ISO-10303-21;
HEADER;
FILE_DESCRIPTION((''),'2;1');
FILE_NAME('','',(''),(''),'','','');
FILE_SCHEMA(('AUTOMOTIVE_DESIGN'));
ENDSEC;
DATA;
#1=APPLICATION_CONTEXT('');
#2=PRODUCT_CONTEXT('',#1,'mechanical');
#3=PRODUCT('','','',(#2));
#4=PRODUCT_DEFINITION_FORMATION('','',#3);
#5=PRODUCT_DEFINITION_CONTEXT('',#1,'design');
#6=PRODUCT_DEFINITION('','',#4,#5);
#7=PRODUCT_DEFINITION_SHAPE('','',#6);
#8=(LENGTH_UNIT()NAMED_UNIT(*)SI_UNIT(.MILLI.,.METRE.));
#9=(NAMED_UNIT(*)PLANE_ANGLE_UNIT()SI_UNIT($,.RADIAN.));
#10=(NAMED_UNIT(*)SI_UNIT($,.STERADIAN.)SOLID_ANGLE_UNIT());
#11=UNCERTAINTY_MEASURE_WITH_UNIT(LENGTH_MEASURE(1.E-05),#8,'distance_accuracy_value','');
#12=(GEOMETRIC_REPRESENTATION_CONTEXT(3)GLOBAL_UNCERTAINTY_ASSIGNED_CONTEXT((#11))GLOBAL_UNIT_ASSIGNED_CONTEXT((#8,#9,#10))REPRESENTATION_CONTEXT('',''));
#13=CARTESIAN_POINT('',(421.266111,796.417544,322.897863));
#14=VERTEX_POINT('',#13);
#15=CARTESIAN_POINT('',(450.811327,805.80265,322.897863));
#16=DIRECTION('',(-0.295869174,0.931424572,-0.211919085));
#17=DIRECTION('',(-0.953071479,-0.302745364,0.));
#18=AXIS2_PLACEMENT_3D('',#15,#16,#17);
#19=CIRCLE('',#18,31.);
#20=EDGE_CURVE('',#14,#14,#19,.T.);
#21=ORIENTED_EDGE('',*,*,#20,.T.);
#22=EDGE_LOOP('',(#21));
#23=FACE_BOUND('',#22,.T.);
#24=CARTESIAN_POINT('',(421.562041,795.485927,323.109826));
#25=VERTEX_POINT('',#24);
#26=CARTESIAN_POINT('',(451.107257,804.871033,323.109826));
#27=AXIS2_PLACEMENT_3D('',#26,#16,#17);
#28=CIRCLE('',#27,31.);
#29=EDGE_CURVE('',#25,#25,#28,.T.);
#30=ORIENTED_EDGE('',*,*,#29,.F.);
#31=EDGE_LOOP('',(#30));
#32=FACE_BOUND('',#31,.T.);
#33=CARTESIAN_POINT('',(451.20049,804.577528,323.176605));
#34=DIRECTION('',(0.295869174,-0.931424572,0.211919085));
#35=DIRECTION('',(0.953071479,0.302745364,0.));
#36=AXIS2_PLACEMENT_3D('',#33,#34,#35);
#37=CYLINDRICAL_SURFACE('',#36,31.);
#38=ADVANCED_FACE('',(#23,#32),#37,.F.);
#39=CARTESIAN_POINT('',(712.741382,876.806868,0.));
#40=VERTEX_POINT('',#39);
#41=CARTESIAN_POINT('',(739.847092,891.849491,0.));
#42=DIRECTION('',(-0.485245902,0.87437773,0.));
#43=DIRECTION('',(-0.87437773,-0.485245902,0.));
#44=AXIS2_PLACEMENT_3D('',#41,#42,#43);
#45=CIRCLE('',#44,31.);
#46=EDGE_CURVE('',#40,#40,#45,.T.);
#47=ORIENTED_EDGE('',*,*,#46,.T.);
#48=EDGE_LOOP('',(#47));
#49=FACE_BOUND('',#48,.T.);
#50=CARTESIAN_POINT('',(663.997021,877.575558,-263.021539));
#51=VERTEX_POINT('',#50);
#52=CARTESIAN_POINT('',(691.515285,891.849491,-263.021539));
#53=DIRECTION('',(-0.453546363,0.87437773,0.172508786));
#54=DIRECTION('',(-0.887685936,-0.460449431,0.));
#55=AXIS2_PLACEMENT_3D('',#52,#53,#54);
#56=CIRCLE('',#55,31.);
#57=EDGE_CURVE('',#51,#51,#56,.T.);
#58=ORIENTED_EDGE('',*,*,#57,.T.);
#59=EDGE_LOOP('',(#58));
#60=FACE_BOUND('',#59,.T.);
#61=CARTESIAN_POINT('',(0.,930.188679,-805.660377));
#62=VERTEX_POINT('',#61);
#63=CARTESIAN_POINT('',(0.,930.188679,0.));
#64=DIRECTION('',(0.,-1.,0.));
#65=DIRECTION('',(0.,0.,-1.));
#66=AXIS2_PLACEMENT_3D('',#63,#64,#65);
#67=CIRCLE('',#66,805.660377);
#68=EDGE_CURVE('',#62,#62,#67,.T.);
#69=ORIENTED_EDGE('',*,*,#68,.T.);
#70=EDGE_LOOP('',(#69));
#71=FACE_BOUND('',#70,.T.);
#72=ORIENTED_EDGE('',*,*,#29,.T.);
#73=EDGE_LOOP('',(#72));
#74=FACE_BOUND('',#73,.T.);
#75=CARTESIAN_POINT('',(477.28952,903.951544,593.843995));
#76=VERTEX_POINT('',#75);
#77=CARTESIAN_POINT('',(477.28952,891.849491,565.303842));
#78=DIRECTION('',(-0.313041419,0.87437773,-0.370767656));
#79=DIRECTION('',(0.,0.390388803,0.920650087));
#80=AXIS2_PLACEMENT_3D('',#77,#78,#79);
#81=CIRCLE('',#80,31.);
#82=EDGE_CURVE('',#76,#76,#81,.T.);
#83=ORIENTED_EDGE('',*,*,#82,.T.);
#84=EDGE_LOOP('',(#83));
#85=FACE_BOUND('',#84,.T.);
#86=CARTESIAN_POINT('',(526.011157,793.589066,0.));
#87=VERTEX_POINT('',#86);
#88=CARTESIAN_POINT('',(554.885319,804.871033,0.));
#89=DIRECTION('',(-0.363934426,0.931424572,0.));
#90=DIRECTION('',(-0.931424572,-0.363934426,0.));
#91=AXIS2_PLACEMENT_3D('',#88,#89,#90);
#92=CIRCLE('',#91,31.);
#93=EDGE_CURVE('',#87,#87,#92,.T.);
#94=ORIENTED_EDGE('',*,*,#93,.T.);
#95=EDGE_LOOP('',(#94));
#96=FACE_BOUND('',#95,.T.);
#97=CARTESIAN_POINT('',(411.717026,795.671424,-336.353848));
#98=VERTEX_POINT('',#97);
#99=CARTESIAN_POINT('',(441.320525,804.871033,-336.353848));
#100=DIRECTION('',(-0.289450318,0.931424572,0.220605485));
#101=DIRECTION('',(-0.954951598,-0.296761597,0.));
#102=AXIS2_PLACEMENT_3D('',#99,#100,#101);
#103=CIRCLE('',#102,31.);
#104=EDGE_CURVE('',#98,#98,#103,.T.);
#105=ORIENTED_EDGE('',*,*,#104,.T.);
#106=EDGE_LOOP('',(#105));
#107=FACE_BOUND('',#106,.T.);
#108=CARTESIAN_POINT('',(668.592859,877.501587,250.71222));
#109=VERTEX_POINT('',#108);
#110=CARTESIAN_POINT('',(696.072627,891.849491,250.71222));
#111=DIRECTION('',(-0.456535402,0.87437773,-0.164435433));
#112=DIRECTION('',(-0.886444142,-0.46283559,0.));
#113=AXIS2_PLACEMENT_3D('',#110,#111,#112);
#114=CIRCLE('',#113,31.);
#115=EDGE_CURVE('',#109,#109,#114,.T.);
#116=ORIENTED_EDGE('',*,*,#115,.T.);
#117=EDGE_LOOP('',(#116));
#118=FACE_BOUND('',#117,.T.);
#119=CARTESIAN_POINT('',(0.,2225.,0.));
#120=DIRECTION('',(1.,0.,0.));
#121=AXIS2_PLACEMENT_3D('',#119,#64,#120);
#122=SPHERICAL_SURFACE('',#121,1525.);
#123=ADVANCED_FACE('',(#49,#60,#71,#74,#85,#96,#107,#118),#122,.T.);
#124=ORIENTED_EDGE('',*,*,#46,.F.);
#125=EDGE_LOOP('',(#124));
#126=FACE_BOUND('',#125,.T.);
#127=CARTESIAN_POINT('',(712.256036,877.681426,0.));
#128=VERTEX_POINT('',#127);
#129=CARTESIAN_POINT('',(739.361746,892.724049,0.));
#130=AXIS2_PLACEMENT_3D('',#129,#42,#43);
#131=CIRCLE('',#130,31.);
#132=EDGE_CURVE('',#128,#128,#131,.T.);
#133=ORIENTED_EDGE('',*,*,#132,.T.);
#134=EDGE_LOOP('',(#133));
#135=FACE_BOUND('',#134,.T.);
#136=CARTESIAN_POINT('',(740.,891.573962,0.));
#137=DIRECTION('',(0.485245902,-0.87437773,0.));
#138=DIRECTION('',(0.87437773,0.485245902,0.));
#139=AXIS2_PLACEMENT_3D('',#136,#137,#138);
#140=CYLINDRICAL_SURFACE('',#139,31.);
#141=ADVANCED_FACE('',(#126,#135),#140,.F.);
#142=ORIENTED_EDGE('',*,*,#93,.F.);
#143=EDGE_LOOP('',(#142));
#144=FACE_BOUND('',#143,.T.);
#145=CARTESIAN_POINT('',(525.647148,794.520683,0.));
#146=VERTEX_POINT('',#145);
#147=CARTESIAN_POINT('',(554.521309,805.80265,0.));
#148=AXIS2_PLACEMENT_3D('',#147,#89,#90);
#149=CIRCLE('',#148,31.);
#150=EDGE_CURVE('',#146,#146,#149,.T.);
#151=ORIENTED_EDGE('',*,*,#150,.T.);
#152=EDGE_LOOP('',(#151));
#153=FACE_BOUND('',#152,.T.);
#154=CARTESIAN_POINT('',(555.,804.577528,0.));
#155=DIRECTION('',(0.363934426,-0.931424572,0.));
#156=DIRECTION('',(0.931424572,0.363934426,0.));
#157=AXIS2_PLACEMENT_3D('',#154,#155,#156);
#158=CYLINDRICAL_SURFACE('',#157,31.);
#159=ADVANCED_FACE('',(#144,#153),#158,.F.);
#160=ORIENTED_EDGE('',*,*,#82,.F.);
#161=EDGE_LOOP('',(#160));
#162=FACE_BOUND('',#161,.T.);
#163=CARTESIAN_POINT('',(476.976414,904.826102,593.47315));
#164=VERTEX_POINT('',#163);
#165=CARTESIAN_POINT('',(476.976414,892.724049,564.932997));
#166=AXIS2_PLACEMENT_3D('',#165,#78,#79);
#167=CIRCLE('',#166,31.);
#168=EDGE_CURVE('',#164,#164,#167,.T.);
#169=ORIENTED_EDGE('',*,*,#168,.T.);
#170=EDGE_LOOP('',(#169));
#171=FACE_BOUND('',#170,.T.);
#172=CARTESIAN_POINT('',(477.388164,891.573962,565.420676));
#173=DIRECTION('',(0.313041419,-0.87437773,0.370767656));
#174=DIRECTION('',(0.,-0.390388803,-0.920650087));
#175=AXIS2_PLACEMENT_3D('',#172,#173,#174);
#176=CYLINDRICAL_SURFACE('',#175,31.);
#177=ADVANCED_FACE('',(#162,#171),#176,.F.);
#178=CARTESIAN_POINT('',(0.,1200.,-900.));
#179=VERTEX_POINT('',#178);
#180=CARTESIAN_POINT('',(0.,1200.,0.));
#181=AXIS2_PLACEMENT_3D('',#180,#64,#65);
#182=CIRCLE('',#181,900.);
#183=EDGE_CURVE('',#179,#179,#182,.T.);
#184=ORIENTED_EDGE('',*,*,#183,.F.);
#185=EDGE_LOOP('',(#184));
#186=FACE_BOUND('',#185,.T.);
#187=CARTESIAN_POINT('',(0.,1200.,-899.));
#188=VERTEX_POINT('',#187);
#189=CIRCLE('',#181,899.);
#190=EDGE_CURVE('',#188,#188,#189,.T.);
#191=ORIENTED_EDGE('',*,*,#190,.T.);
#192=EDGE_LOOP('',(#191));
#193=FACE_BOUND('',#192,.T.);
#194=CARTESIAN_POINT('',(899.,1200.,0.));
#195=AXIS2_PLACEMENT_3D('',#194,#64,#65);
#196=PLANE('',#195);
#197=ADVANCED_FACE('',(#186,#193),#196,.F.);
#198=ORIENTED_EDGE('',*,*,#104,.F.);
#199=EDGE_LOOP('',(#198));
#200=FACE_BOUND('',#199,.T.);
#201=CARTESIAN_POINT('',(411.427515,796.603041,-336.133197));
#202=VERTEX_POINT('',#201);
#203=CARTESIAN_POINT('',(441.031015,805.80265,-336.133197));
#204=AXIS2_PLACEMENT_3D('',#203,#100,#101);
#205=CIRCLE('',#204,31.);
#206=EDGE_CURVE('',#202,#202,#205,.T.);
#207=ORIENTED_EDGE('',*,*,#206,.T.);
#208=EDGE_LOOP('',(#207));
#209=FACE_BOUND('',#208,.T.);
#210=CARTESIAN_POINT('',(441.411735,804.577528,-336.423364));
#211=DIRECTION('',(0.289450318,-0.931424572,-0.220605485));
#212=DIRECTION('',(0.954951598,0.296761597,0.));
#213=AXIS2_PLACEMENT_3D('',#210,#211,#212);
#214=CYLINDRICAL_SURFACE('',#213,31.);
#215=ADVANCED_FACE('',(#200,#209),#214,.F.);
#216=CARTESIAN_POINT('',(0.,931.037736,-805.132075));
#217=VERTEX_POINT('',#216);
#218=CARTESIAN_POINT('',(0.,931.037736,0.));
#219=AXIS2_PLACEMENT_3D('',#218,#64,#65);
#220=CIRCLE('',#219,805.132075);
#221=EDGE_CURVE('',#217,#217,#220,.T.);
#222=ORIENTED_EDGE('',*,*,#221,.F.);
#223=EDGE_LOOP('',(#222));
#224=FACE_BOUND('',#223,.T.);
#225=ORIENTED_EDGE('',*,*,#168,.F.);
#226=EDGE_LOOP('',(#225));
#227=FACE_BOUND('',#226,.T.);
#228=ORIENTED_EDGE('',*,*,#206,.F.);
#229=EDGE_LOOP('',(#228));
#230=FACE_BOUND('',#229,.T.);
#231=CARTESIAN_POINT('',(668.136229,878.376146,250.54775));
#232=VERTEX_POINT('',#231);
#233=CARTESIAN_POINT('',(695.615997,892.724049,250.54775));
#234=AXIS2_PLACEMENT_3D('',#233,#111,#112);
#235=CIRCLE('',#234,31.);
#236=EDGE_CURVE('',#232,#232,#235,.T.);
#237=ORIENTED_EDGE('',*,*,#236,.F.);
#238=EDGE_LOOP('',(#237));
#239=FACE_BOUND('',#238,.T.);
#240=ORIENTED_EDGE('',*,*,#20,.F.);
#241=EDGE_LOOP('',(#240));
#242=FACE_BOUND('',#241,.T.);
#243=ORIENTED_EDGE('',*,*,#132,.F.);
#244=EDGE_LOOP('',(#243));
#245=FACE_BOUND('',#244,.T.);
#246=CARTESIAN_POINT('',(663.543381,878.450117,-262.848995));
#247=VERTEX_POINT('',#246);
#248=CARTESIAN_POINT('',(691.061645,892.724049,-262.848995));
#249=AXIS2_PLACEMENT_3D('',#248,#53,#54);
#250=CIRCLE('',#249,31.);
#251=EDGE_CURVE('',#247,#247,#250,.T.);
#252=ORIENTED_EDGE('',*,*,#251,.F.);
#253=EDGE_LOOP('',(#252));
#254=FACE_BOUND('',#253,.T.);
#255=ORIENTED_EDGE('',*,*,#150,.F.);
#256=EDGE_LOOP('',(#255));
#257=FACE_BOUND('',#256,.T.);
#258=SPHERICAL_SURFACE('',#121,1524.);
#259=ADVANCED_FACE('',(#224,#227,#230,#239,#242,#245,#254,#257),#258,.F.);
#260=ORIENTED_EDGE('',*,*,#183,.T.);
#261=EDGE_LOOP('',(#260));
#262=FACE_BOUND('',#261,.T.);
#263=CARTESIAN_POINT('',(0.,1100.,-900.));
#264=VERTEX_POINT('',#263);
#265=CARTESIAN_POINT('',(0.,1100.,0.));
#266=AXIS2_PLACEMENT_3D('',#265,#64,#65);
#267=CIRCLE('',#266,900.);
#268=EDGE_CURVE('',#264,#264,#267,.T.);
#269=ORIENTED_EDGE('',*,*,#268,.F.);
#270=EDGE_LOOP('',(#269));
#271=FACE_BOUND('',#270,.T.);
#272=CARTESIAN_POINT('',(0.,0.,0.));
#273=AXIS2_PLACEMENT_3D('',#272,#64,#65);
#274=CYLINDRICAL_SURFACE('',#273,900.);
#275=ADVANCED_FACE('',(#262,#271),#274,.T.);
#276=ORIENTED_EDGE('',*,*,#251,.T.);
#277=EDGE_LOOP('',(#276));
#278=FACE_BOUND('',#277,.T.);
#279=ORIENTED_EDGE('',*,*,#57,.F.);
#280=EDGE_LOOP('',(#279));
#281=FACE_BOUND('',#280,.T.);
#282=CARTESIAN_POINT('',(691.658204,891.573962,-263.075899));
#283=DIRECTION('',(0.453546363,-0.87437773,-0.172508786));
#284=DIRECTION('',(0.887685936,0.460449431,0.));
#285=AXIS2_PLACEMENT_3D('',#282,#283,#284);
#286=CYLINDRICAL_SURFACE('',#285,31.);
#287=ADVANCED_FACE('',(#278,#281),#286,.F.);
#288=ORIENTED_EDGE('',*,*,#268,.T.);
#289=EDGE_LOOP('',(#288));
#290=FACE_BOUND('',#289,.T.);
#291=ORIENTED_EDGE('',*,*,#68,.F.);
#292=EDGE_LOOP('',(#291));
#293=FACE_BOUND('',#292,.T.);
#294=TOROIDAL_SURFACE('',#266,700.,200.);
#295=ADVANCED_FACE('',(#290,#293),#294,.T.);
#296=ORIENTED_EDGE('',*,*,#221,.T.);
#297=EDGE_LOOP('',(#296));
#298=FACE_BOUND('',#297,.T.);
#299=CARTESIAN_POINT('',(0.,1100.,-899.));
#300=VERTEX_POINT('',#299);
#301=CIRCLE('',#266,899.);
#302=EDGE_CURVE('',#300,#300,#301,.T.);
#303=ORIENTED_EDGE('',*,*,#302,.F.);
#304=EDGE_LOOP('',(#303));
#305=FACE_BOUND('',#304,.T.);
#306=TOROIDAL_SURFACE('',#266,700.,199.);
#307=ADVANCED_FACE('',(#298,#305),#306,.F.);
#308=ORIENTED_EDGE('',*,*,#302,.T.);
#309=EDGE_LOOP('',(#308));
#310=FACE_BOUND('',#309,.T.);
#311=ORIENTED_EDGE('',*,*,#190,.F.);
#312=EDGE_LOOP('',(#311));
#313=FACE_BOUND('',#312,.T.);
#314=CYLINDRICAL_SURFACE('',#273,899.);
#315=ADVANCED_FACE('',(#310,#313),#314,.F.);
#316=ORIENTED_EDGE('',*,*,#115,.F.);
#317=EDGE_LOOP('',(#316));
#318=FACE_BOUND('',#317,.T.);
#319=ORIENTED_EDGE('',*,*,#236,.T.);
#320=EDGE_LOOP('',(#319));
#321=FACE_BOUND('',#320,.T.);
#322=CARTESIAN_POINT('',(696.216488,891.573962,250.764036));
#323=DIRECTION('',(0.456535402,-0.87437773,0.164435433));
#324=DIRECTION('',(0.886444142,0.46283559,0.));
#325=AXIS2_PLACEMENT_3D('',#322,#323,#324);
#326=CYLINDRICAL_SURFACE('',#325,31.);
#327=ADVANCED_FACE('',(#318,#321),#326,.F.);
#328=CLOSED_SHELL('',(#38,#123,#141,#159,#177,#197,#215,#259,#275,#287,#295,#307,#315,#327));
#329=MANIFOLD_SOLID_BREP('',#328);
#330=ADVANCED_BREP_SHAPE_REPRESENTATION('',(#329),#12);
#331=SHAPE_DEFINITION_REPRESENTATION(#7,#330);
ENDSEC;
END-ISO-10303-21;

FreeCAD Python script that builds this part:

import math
import FreeCAD as App
import Part
import Sketcher

V = App.Vector

doc = App.newDocument("Part")
body = doc.addObject("PartDesign::Body", "Body")

# Sketch on XY plane
sketch1 = doc.addObject("Sketcher::SketchObject", "Sketch")
body.addObject(sketch1)
sketch1.AttachmentSupport = (doc.XY_Plane, [""])
sketch1.MapMode = "FlatFace"
sketch1.addGeometry([
    Part.LineSegment(V(900, 1100, 0), V(900, 1200, 0)),  # 0
    Part.LineSegment(V(900, 1200, 0), V(899, 1200, 0)),  # 1
    Part.LineSegment(V(899, 1200, 0), V(899, 1100, 0)),  # 2
    Part.ArcOfCircle(Part.Circle(V(700, 1100, 0), V(0, 0, 1), 199), math.radians(-58.109208), math.radians(0)),  # 3
    Part.ArcOfCircle(Part.Circle(V(0, 2225, 0), V(0, 0, 1), 1524), math.radians(-90), math.radians(-58.109208)),  # 4
    Part.LineSegment(V(0, 701, 0), V(0, 700, 0)),  # 5
    Part.ArcOfCircle(Part.Circle(V(0, 2225, 0), V(0, 0, 1), 1525), math.radians(-90), math.radians(-58.109208)),  # 6
    Part.ArcOfCircle(Part.Circle(V(700, 1100, 0), V(0, 0, 1), 200), math.radians(-58.109208), math.radians(0)),  # 7
], False)
sketch1.addConstraint([
    Sketcher.Constraint("Coincident", 0, 2, 1, 1),
    Sketcher.Constraint("Coincident", 1, 2, 2, 1),
    Sketcher.Constraint("Tangent", 2, 2, 3, 2),
    Sketcher.Constraint("Tangent", 3, 1, 4, 2),
    Sketcher.Constraint("Coincident", 4, 1, 5, 1),
    Sketcher.Constraint("Coincident", 5, 2, 6, 1),
    Sketcher.Constraint("Tangent", 6, 2, 7, 1),
    Sketcher.Constraint("Tangent", 7, 2, 0, 1),
    Sketcher.Constraint("Vertical", 0),
    Sketcher.Constraint("Horizontal", 1),
    Sketcher.Constraint("Vertical", 2),
    Sketcher.Constraint("Vertical", 5),
    Sketcher.Constraint("Coincident", 6, 3, 4, 3),
    Sketcher.Constraint("Coincident", 7, 3, 3, 3),
    Sketcher.Constraint("PointOnObject", 4, 3, -2),
    Sketcher.Constraint("PointOnObject", 5, 2, -2),
    Sketcher.Constraint("Radius", 3, 199.0),
    Sketcher.Constraint("Radius", 4, 1524.0),
    Sketcher.Constraint("Radius", 6, 1525.0),
    Sketcher.Constraint("DistanceY", 0, 1, 0, 2, 100.0),
    Sketcher.Constraint("DistanceX", -1, 1, 3, 3, 700.0),
    Sketcher.Constraint("DistanceY", -1, 1, 3, 3, 1100.0),
])
revolution = doc.addObject("PartDesign::Revolution", "Revolution")
body.addObject(revolution)
revolution.Profile = sketch1
revolution.ReferenceAxis = (sketch1, ["V_Axis"])
revolution.Angle = 360

# Sketch on an angled plane
sketch2 = doc.addObject("Sketcher::SketchObject", "Sketch001")
body.addObject(sketch2)
sketch2.Placement = App.Placement(V(-190.711914, 367.667485, 72.538297), App.Rotation(V(-0.887685936, -0.460449431, 0), V(-0.079431572, 0.153133623, -0.985007978), V(0.453546363, -0.87437773, -0.172508786), "ZXY"))
sketch2.addGeometry(Part.Circle(V(-1024.499983, 340.722312, 0), V(0, 0, 1), 31), False)
sketch2.addConstraint([
    Sketcher.Constraint("Diameter", 0, 62.0),
    Sketcher.Constraint("DistanceY", -1, 1, 0, 3, 340.722312),
    Sketcher.Constraint("DistanceX", 0, 3, -1, 1, 1024.499983),
])
doc.recompute()
hole = doc.addObject("PartDesign::Hole", "Hole")
body.addObject(hole)
hole.Profile = sketch2
hole.ThreadType = "None"
hole.Diameter = 62
hole.DepthType = "ThroughAll"

# Sketch on an angled plane
sketch3 = doc.addObject("Sketcher::SketchObject", "Sketch002")
body.addObject(sketch3)
sketch3.Placement = App.Placement(V(-131.630767, 367.667643, -155.904422), App.Rotation(V(0, -0.390389007, -0.92065), V(0.949739637, 0.288201129, -0.122207737), V(0.313040927, -0.874377797, 0.370767914), "ZXY"))
sketch3.addGeometry(Part.Circle(V(-868.615219, 641.248303, 0), V(0, 0, 1), 31), False)
sketch3.addConstraint([
    Sketcher.Constraint("Diameter", 0, 62.0),
    Sketcher.Constraint("DistanceX", 0, 3, -1, 1, 868.615219),
    Sketcher.Constraint("DistanceY", -1, 1, 0, 3, 641.248303),
])
doc.recompute()
hole2 = doc.addObject("PartDesign::Hole", "Hole001")
body.addObject(hole2)
hole2.Profile = sketch3
hole2.ThreadType = "None"
hole2.Diameter = 62
hole2.DepthType = "ThroughAll"

# Sketch on an angled plane
sketch4 = doc.addObject("Sketcher::SketchObject", "Sketch003")
body.addObject(sketch4)
sketch4.Placement = App.Placement(V(-204.041274, 367.667537, 0), App.Rotation(V(-0.874377752, -0.485245862, 0), V(0, 0, -1), V(0.485245862, -0.874377752, 0), "ZXY"))
sketch4.addGeometry(Part.Circle(V(-1079.672112, 0, 0), V(0, 0, 1), 31), False)
sketch4.addConstraint([
    Sketcher.Constraint("PointOnObject", 0, 3, -1),
    Sketcher.Constraint("Diameter", 0, 62.0),
    Sketcher.Constraint("DistanceX", 0, 3, -1, 1, 1079.672112),
])
doc.recompute()
hole3 = doc.addObject("PartDesign::Hole", "Hole002")
body.addObject(hole3)
hole3.Profile = sketch4
hole3.ThreadType = "None"
hole3.Diameter = 62
hole3.DepthType = "ThroughAll"

# Sketch on an angled plane
sketch5 = doc.addObject("Sketcher::SketchObject", "Sketch004")
body.addObject(sketch5)
sketch5.Placement = App.Placement(V(-158.450748, 509.880769, 120.763612), App.Rotation(V(-0.954951729, -0.296761175, 0), V(-0.065466986, 0.210667084, -0.975363241), V(0.289449942, -0.931424814, -0.220604956), "ZXY"))
sketch5.addGeometry(Part.Circle(V(-660.294272, 468.735089, 0), V(0, 0, 1), 31), False)
sketch5.addConstraint([
    Sketcher.Constraint("Diameter", 0, 62.0),
    Sketcher.Constraint("DistanceY", -1, 1, 0, 3, 468.735089),
    Sketcher.Constraint("DistanceX", 0, 3, -1, 1, 660.294272),
])
doc.recompute()
hole4 = doc.addObject("PartDesign::Hole", "Hole003")
body.addObject(hole4)
hole4.Profile = sketch5
hole4.ThreadType = "None"
hole4.Diameter = 62
hole4.DepthType = "ThroughAll"

# Sketch on an angled plane
sketch6 = doc.addObject("Sketcher::SketchObject", "Sketch005")
body.addObject(sketch6)
sketch6.Placement = App.Placement(V(-199.224746, 509.880662, 0), App.Rotation(V(-0.931424773, -0.363933911, 0), V(0, 0, -0.999999999), V(0.363933911, -0.931424773, 0), "ZXY"))
sketch6.addGeometry(Part.Circle(V(-809.753795, 0, 0), V(0, 0, 1), 31), False)
sketch6.addConstraint([
    Sketcher.Constraint("PointOnObject", 0, 3, -1),
    Sketcher.Constraint("Diameter", 0, 62.0),
    Sketcher.Constraint("DistanceX", 0, 3, -1, 1, 809.753795),
])
doc.recompute()
hole5 = doc.addObject("PartDesign::Hole", "Hole004")
body.addObject(hole5)
hole5.Profile = sketch6
hole5.ThreadType = "None"
hole5.Diameter = 62
hole5.DepthType = "ThroughAll"

# Sketch on an angled plane
sketch7 = doc.addObject("Sketcher::SketchObject", "Sketch006")
body.addObject(sketch7)
sketch7.Placement = App.Placement(V(-191.968902, 367.668162, -69.143453), App.Rotation(V(-0.886444367, -0.462835158, 0), V(0.076106301, -0.145762482, -0.98638792), V(0.456535009, -0.874378016, 0.164435003), "ZXY"))
sketch7.addGeometry(Part.Circle(V(-1029.808959, -324.322188, 0), V(0, 0, 1), 31), False)
sketch7.addConstraint([
    Sketcher.Constraint("Diameter", 0, 62.0),
    Sketcher.Constraint("DistanceX", 0, 3, -1, 1, 1029.808959),
    Sketcher.Constraint("DistanceY", 0, 3, -1, 1, 324.322188),
])
doc.recompute()
hole6 = doc.addObject("PartDesign::Hole", "Hole005")
body.addObject(hole6)
hole6.Profile = sketch7
hole6.ThreadType = "None"
hole6.Diameter = 62
hole6.DepthType = "ThroughAll"

# Sketch on an angled plane
sketch8 = doc.addObject("Sketcher::SketchObject", "Sketch007")
body.addObject(sketch8)
sketch8.Placement = App.Placement(V(-161.964538, 509.880452, -116.008649), App.Rotation(V(-0.953071571, -0.302745077, 0), V(0.064157413, -0.201973908, -0.977287249), V(0.295868903, -0.931424693, 0.21191893), "ZXY"))
sketch8.addGeometry(Part.Circle(V(-673.608245, -449.392187, 0), V(0, 0, 1), 31), False)
sketch8.addConstraint([
    Sketcher.Constraint("Diameter", 0, 62.0),
    Sketcher.Constraint("DistanceX", 0, 3, -1, 1, 673.608245),
    Sketcher.Constraint("DistanceY", 0, 3, -1, 1, 449.392187),
])
doc.recompute()
hole7 = doc.addObject("PartDesign::Hole", "Hole006")
body.addObject(hole7)
hole7.Profile = sketch8
hole7.ThreadType = "None"
hole7.Diameter = 62
hole7.DepthType = "ThroughAll"

doc.recompute()
